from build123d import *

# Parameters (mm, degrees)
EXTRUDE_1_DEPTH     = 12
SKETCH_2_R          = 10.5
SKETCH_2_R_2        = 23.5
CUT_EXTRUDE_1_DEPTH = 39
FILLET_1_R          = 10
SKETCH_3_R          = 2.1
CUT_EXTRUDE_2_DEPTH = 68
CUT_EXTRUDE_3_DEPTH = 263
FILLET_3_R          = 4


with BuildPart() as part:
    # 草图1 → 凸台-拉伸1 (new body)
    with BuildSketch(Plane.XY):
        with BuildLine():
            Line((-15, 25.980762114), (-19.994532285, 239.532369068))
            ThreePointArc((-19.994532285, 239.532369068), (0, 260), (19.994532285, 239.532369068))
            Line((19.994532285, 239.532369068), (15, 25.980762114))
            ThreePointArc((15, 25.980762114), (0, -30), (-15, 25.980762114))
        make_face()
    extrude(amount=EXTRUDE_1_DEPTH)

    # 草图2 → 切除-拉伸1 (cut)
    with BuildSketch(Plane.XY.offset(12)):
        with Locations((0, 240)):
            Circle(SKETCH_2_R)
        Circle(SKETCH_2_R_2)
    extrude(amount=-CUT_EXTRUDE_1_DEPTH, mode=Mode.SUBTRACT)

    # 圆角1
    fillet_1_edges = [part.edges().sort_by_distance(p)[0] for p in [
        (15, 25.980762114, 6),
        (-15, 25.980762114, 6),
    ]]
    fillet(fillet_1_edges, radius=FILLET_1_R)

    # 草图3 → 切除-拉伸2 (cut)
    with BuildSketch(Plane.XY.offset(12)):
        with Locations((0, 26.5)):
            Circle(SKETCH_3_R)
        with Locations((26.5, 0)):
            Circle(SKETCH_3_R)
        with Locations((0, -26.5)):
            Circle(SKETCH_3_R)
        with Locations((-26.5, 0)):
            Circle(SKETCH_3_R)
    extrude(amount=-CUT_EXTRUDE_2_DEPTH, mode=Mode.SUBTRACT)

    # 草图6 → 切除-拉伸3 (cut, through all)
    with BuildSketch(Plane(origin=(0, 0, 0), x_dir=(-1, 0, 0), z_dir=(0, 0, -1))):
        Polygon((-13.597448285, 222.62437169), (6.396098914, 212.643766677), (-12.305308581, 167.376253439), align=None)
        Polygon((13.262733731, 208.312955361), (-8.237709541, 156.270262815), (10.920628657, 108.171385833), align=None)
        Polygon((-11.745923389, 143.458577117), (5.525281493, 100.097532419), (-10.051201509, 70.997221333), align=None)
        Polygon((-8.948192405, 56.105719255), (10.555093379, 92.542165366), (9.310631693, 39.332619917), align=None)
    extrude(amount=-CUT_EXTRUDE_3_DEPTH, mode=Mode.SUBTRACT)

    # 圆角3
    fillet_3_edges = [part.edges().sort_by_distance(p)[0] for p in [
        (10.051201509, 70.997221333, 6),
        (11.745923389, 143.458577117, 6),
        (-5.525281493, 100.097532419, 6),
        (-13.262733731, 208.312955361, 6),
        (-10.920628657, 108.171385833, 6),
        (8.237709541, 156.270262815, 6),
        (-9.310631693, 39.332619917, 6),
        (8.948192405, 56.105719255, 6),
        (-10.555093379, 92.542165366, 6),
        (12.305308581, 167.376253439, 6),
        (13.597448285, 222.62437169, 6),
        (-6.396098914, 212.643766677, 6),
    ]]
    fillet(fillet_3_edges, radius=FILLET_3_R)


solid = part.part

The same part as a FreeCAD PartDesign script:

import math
import FreeCAD as App
import Part
import Sketcher
from FreeCAD import Vector


def edges_at(feature, points):
    """Names of the edges that pass closest to the given points."""
    edges = feature.Shape.Edges
    near = lambda p: min(range(len(edges)), key=lambda i: edges[i].distToShape(Part.Vertex(*p))[0])
    return sorted({f"Edge{near(p) + 1}" for p in points})


def add_polygon(sketch, points):
    """Adds a closed chain of lines whose ends are joined by coincident constraints."""
    first, n = sketch.GeometryCount, len(points)
    for a, b in zip(points, points[1:] + points[:1]):
        sketch.addGeometry(Part.LineSegment(App.Vector(*a, 0), App.Vector(*b, 0)), False)
    for i in range(n):
        sketch.addConstraint(Sketcher.Constraint("Coincident", first + i, 2, first + (i + 1) % n, 1))

doc = App.newDocument("Part")
body = doc.addObject("PartDesign::Body", "Body")

# Sketch on XY plane
sketch1 = body.newObject("Sketcher::SketchObject", "Sketch")
sketch1.AttachmentSupport = (doc.getObject("XY_Plane"), [""])
sketch1.MapMode = "FlatFace"
sketch1.addGeometry([
    Part.LineSegment(Vector(-20, 240, 0), Vector(-15, 26, 0)),
    Part.ArcOfCircle(Part.Circle(Vector(0, 0, 0), Vector(0, 0, 1), 30), math.radians(120), math.radians(420)),
    Part.LineSegment(Vector(15, 26, 0), Vector(20, 240, 0)),
    Part.ArcOfCircle(Part.Circle(Vector(0, 240, 0), Vector(0, 0, 1), 20), math.radians(-1), math.radians(181)),
], False)
sketch1.addConstraint([
    Sketcher.Constraint("Coincident", 0, 2, 1, 1),
    Sketcher.Constraint("Coincident", 1, 2, 2, 1),
    Sketcher.Constraint("Tangent", 2, 2, 3, 1),
    Sketcher.Constraint("Tangent", 3, 2, 0, 1),
    Sketcher.Constraint("Coincident", 1, 3, -1, 1),
    Sketcher.Constraint("Symmetric", 2, 2, 3, 2, -2),
    Sketcher.Constraint("Radius", 1, 30.0),
    Sketcher.Constraint("Radius", 3, 20.0),
    Sketcher.Constraint("DistanceY", -1, 1, 3, 3, 240.0),
    Sketcher.Constraint("DistanceX", 0, 2, -1, 1, 15.0),
])
pad1 = body.newObject("PartDesign::Pad", "Pad")
pad1.Profile = sketch1
pad1.Length = 12

# Sketch on XY plane
sketch2 = body.newObject("Sketcher::SketchObject", "Sketch001")
sketch2.AttachmentSupport = (doc.getObject("XY_Plane"), [""])
sketch2.MapMode = "FlatFace"
sketch2.AttachmentOffset = App.Placement(Vector(0, 0, 12), App.Rotation())
sketch2.addGeometry([
    Part.Circle(Vector(0, 240, 0), Vector(0, 0, 1), 10),
    Part.Circle(Vector(0, 0, 0), Vector(0, 0, 1), 24),
], False)
sketch2.addConstraint([
    Sketcher.Constraint("Coincident", 1, 3, -1, 1),
    Sketcher.Constraint("PointOnObject", 0, 3, -2),
    Sketcher.Constraint("Diameter", 0, 21.0),
    Sketcher.Constraint("Diameter", 1, 47.0),
    Sketcher.Constraint("DistanceY", -1, 1, 0, 3, 240.0),
])
pocket1 = body.newObject("PartDesign::Pocket", "Pocket")
pocket1.Profile = sketch2
pocket1.Length = 39
doc.recompute()

fillet = body.newObject("PartDesign::Fillet", "Fillet")
fillet.Base = (pocket1, edges_at(pocket1, [(15, 25.981, 6), (-15, 25.981, 6)]))
fillet.Radius = 10

# Sketch on XY plane
sketch3 = body.newObject("Sketcher::SketchObject", "Sketch002")
sketch3.AttachmentSupport = (doc.getObject("XY_Plane"), [""])
sketch3.MapMode = "FlatFace"
sketch3.AttachmentOffset = App.Placement(Vector(0, 0, 12), App.Rotation())
sketch3.addGeometry([
    Part.Circle(Vector(0, 26.5, 0), Vector(0, 0, 1), 2.1),
    Part.Circle(Vector(26.5, 0, 0), Vector(0, 0, 1), 2.1),
    Part.Circle(Vector(0, -26.5, 0), Vector(0, 0, 1), 2.1),
    Part.Circle(Vector(-26.5, 0, 0), Vector(0, 0, 1), 2.1),
], False)
sketch3.addConstraint([
    Sketcher.Constraint("Equal", 0, 1),
    Sketcher.Constraint("Equal", 1, 2),
    Sketcher.Constraint("Equal", 2, 3),
    Sketcher.Constraint("Symmetric", 0, 3, 2, 3, -1, 1),
    Sketcher.Constraint("Symmetric", 1, 3, 3, 3, -1, 1),
    Sketcher.Constraint("PointOnObject", 0, 3, -2),
    Sketcher.Constraint("PointOnObject", 1, 3, -1),
    Sketcher.Constraint("Diameter", 0, 4.2),
    Sketcher.Constraint("DistanceY", 2, 3, 0, 3, 53.0),
    Sketcher.Constraint("DistanceX", 3, 3, 1, 3, 53.0),
])
pocket2 = body.newObject("PartDesign::Pocket", "Pocket001")
pocket2.Profile = sketch3
pocket2.Length = 68

# Sketch on XY plane
sketch4 = body.newObject("Sketcher::SketchObject", "Sketch003")
sketch4.AttachmentSupport = (doc.getObject("XY_Plane"), [""])
sketch4.MapMode = "FlatFace"
add_polygon(sketch4, [(-6, 213), (14, 223), (12, 167)])  # lines 0-2
add_polygon(sketch4, [(-13, 208), (8, 156), (-11, 108)])  # lines 3-5
add_polygon(sketch4, [(-6, 100), (12, 143), (10, 71)])  # lines 6-8
add_polygon(sketch4, [(-11, 93), (9, 56), (-9, 39)])  # lines 9-11
sketch4.addConstraint([
    Sketcher.Constraint("Parallel", 2, 3),
    Sketcher.Constraint("Parallel", 4, 6),
    Sketcher.Constraint("Parallel", 1, 7),
    Sketcher.Constraint("Parallel", 8, 9),
    Sketcher.Constraint("Parallel", 5, 11),
    Sketcher.Constraint("DistanceX", 2, 2, -1, 1, 6.396099),
    Sketcher.Constraint("DistanceX", -1, 1, 7, 2, 10.051202),
    Sketcher.Constraint("DistanceX", 3, 2, 1, 2, 4.067599),
    Sketcher.Constraint("DistanceY", 1, 2, 5, 2, 40.936702),
    Sketcher.Constraint("DistanceY", 10, 2, 9, 2, 16.773099),
    Sketcher.Constraint("DistanceY", 10, 2, 7, 2, 31.664601),
    Sketcher.Constraint("Distance", 0, 22.346239),
    Sketcher.Constraint("Distance", 2, 48.978469),
    Sketcher.Constraint("Distance", 4, 51.773969),
    Sketcher.Constraint("Distance", 7, 72.481171),
    Sketcher.Constraint("Distance", 9, 41.327869),
    Sketcher.Constraint("Distance", 10, 24.793578),
    Sketcher.Constraint("DistanceX", -1, 1, 0, 2, 13.597448),
    Sketcher.Constraint("DistanceY", -1, 1, 0, 2, 222.624372),
    Sketcher.Constraint("DistanceX", -1, 1, 1, 2, 12.305309),
    Sketcher.Constraint("DistanceX", 4, 2, -1, 1, 10.920629),
    Sketcher.Constraint("DistanceY", -1, 1, 7, 2, 70.997221),
    Sketcher.Constraint("DistanceX", 8, 2, -1, 1, 5.525281),
    Sketcher.Constraint("DistanceX", 10, 2, -1, 1, 9.310632),
])
pocket3 = body.newObject("PartDesign::Pocket", "Pocket002")
pocket3.Profile = sketch4
pocket3.Type = "ThroughAll"
pocket3.Reversed = True
doc.recompute()

fillet2 = body.newObject("PartDesign::Fillet", "Fillet001")
fillet2.Base = (pocket3, edges_at(pocket3, [
    (10.051, 70.997, 6),
    (11.746, 143.459, 6),
    (-5.525, 100.098, 6),
    (-13.263, 208.313, 6),
    (-10.921, 108.171, 6),
    (8.238, 156.27, 6),
    (-9.311, 39.333, 6),
    (8.948, 56.106, 6),
    (-10.555, 92.542, 6),
    (12.305, 167.376, 6),
    (13.597, 222.624, 6),
    (-6.396, 212.644, 6),
]))
fillet2.Radius = 4

doc.recompute()
